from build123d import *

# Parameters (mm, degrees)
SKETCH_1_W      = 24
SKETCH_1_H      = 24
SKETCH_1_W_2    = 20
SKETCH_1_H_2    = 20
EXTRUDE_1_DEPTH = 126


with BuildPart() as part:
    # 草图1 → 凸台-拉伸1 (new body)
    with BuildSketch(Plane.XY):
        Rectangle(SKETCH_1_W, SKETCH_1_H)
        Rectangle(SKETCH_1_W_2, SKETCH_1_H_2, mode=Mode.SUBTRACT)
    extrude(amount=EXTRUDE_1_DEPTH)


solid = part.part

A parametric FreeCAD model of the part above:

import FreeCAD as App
import Part
import Sketcher
from FreeCAD import Vector
Q = App.Units.Quantity


def add_polygon(sketch, points):
    """Adds a closed chain of lines whose ends are joined by coincident constraints."""
    first, n = sketch.GeometryCount, len(points)
    for a, b in zip(points, points[1:] + points[:1]):
        sketch.addGeometry(Part.LineSegment(App.Vector(*a, 0), App.Vector(*b, 0)), False)
    for i in range(n):
        sketch.addConstraint(Sketcher.Constraint("Coincident", first + i, 2, first + (i + 1) % n, 1))

doc = App.newDocument("Part")
body = doc.addObject("PartDesign::Body", "Body")

# Sketch on XY plane
sketch1 = doc.addObject("Sketcher::SketchObject", "Sketch")
body.addObject(sketch1)
sketch1.AttachmentSupport = (doc.XY_Plane, [""])
sketch1.MapMode = "FlatFace"
add_polygon(sketch1, [(-12, 12), (-12, -12), (12, -12), (12, 12)])  # lines 0-3
add_polygon(sketch1, [(10, -10), (-10, -10), (-10, 10), (10, 10)])  # lines 4-7
sketch1.addConstraint(Sketcher.Constraint("Vertical", 0))
sketch1.addConstraint(Sketcher.Constraint("Horizontal", 1))
sketch1.addConstraint(Sketcher.Constraint("Vertical", 2))
sketch1.addConstraint(Sketcher.Constraint("Horizontal", 3))
sketch1.addConstraint(Sketcher.Constraint("Horizontal", 4))
sketch1.addConstraint(Sketcher.Constraint("Vertical", 5))
sketch1.addConstraint(Sketcher.Constraint("Horizontal", 6))
sketch1.addConstraint(Sketcher.Constraint("Vertical", 7))
sketch1.addConstraint(Sketcher.Constraint("Symmetric", 0, 2, 2, 2, -1, 1))
sketch1.addConstraint(Sketcher.Constraint("Symmetric", 4, 2, 6, 2, -1, 1))
sketch1.addConstraint(Sketcher.Constraint("Equal", 3, 0))
sketch1.addConstraint(Sketcher.Constraint("Equal", 6, 5))
sketch1.addConstraint(Sketcher.Constraint("DistanceX", 1, 1, 1, 2, Q("24 mm")))
sketch1.addConstraint(Sketcher.Constraint("DistanceX", 4, 2, 4, 1, Q("20 mm")))
pad1 = doc.addObject("PartDesign::Pad", "Pad")
body.addObject(pad1)
pad1.Profile = sketch1
pad1.Length = 126

doc.recompute()
